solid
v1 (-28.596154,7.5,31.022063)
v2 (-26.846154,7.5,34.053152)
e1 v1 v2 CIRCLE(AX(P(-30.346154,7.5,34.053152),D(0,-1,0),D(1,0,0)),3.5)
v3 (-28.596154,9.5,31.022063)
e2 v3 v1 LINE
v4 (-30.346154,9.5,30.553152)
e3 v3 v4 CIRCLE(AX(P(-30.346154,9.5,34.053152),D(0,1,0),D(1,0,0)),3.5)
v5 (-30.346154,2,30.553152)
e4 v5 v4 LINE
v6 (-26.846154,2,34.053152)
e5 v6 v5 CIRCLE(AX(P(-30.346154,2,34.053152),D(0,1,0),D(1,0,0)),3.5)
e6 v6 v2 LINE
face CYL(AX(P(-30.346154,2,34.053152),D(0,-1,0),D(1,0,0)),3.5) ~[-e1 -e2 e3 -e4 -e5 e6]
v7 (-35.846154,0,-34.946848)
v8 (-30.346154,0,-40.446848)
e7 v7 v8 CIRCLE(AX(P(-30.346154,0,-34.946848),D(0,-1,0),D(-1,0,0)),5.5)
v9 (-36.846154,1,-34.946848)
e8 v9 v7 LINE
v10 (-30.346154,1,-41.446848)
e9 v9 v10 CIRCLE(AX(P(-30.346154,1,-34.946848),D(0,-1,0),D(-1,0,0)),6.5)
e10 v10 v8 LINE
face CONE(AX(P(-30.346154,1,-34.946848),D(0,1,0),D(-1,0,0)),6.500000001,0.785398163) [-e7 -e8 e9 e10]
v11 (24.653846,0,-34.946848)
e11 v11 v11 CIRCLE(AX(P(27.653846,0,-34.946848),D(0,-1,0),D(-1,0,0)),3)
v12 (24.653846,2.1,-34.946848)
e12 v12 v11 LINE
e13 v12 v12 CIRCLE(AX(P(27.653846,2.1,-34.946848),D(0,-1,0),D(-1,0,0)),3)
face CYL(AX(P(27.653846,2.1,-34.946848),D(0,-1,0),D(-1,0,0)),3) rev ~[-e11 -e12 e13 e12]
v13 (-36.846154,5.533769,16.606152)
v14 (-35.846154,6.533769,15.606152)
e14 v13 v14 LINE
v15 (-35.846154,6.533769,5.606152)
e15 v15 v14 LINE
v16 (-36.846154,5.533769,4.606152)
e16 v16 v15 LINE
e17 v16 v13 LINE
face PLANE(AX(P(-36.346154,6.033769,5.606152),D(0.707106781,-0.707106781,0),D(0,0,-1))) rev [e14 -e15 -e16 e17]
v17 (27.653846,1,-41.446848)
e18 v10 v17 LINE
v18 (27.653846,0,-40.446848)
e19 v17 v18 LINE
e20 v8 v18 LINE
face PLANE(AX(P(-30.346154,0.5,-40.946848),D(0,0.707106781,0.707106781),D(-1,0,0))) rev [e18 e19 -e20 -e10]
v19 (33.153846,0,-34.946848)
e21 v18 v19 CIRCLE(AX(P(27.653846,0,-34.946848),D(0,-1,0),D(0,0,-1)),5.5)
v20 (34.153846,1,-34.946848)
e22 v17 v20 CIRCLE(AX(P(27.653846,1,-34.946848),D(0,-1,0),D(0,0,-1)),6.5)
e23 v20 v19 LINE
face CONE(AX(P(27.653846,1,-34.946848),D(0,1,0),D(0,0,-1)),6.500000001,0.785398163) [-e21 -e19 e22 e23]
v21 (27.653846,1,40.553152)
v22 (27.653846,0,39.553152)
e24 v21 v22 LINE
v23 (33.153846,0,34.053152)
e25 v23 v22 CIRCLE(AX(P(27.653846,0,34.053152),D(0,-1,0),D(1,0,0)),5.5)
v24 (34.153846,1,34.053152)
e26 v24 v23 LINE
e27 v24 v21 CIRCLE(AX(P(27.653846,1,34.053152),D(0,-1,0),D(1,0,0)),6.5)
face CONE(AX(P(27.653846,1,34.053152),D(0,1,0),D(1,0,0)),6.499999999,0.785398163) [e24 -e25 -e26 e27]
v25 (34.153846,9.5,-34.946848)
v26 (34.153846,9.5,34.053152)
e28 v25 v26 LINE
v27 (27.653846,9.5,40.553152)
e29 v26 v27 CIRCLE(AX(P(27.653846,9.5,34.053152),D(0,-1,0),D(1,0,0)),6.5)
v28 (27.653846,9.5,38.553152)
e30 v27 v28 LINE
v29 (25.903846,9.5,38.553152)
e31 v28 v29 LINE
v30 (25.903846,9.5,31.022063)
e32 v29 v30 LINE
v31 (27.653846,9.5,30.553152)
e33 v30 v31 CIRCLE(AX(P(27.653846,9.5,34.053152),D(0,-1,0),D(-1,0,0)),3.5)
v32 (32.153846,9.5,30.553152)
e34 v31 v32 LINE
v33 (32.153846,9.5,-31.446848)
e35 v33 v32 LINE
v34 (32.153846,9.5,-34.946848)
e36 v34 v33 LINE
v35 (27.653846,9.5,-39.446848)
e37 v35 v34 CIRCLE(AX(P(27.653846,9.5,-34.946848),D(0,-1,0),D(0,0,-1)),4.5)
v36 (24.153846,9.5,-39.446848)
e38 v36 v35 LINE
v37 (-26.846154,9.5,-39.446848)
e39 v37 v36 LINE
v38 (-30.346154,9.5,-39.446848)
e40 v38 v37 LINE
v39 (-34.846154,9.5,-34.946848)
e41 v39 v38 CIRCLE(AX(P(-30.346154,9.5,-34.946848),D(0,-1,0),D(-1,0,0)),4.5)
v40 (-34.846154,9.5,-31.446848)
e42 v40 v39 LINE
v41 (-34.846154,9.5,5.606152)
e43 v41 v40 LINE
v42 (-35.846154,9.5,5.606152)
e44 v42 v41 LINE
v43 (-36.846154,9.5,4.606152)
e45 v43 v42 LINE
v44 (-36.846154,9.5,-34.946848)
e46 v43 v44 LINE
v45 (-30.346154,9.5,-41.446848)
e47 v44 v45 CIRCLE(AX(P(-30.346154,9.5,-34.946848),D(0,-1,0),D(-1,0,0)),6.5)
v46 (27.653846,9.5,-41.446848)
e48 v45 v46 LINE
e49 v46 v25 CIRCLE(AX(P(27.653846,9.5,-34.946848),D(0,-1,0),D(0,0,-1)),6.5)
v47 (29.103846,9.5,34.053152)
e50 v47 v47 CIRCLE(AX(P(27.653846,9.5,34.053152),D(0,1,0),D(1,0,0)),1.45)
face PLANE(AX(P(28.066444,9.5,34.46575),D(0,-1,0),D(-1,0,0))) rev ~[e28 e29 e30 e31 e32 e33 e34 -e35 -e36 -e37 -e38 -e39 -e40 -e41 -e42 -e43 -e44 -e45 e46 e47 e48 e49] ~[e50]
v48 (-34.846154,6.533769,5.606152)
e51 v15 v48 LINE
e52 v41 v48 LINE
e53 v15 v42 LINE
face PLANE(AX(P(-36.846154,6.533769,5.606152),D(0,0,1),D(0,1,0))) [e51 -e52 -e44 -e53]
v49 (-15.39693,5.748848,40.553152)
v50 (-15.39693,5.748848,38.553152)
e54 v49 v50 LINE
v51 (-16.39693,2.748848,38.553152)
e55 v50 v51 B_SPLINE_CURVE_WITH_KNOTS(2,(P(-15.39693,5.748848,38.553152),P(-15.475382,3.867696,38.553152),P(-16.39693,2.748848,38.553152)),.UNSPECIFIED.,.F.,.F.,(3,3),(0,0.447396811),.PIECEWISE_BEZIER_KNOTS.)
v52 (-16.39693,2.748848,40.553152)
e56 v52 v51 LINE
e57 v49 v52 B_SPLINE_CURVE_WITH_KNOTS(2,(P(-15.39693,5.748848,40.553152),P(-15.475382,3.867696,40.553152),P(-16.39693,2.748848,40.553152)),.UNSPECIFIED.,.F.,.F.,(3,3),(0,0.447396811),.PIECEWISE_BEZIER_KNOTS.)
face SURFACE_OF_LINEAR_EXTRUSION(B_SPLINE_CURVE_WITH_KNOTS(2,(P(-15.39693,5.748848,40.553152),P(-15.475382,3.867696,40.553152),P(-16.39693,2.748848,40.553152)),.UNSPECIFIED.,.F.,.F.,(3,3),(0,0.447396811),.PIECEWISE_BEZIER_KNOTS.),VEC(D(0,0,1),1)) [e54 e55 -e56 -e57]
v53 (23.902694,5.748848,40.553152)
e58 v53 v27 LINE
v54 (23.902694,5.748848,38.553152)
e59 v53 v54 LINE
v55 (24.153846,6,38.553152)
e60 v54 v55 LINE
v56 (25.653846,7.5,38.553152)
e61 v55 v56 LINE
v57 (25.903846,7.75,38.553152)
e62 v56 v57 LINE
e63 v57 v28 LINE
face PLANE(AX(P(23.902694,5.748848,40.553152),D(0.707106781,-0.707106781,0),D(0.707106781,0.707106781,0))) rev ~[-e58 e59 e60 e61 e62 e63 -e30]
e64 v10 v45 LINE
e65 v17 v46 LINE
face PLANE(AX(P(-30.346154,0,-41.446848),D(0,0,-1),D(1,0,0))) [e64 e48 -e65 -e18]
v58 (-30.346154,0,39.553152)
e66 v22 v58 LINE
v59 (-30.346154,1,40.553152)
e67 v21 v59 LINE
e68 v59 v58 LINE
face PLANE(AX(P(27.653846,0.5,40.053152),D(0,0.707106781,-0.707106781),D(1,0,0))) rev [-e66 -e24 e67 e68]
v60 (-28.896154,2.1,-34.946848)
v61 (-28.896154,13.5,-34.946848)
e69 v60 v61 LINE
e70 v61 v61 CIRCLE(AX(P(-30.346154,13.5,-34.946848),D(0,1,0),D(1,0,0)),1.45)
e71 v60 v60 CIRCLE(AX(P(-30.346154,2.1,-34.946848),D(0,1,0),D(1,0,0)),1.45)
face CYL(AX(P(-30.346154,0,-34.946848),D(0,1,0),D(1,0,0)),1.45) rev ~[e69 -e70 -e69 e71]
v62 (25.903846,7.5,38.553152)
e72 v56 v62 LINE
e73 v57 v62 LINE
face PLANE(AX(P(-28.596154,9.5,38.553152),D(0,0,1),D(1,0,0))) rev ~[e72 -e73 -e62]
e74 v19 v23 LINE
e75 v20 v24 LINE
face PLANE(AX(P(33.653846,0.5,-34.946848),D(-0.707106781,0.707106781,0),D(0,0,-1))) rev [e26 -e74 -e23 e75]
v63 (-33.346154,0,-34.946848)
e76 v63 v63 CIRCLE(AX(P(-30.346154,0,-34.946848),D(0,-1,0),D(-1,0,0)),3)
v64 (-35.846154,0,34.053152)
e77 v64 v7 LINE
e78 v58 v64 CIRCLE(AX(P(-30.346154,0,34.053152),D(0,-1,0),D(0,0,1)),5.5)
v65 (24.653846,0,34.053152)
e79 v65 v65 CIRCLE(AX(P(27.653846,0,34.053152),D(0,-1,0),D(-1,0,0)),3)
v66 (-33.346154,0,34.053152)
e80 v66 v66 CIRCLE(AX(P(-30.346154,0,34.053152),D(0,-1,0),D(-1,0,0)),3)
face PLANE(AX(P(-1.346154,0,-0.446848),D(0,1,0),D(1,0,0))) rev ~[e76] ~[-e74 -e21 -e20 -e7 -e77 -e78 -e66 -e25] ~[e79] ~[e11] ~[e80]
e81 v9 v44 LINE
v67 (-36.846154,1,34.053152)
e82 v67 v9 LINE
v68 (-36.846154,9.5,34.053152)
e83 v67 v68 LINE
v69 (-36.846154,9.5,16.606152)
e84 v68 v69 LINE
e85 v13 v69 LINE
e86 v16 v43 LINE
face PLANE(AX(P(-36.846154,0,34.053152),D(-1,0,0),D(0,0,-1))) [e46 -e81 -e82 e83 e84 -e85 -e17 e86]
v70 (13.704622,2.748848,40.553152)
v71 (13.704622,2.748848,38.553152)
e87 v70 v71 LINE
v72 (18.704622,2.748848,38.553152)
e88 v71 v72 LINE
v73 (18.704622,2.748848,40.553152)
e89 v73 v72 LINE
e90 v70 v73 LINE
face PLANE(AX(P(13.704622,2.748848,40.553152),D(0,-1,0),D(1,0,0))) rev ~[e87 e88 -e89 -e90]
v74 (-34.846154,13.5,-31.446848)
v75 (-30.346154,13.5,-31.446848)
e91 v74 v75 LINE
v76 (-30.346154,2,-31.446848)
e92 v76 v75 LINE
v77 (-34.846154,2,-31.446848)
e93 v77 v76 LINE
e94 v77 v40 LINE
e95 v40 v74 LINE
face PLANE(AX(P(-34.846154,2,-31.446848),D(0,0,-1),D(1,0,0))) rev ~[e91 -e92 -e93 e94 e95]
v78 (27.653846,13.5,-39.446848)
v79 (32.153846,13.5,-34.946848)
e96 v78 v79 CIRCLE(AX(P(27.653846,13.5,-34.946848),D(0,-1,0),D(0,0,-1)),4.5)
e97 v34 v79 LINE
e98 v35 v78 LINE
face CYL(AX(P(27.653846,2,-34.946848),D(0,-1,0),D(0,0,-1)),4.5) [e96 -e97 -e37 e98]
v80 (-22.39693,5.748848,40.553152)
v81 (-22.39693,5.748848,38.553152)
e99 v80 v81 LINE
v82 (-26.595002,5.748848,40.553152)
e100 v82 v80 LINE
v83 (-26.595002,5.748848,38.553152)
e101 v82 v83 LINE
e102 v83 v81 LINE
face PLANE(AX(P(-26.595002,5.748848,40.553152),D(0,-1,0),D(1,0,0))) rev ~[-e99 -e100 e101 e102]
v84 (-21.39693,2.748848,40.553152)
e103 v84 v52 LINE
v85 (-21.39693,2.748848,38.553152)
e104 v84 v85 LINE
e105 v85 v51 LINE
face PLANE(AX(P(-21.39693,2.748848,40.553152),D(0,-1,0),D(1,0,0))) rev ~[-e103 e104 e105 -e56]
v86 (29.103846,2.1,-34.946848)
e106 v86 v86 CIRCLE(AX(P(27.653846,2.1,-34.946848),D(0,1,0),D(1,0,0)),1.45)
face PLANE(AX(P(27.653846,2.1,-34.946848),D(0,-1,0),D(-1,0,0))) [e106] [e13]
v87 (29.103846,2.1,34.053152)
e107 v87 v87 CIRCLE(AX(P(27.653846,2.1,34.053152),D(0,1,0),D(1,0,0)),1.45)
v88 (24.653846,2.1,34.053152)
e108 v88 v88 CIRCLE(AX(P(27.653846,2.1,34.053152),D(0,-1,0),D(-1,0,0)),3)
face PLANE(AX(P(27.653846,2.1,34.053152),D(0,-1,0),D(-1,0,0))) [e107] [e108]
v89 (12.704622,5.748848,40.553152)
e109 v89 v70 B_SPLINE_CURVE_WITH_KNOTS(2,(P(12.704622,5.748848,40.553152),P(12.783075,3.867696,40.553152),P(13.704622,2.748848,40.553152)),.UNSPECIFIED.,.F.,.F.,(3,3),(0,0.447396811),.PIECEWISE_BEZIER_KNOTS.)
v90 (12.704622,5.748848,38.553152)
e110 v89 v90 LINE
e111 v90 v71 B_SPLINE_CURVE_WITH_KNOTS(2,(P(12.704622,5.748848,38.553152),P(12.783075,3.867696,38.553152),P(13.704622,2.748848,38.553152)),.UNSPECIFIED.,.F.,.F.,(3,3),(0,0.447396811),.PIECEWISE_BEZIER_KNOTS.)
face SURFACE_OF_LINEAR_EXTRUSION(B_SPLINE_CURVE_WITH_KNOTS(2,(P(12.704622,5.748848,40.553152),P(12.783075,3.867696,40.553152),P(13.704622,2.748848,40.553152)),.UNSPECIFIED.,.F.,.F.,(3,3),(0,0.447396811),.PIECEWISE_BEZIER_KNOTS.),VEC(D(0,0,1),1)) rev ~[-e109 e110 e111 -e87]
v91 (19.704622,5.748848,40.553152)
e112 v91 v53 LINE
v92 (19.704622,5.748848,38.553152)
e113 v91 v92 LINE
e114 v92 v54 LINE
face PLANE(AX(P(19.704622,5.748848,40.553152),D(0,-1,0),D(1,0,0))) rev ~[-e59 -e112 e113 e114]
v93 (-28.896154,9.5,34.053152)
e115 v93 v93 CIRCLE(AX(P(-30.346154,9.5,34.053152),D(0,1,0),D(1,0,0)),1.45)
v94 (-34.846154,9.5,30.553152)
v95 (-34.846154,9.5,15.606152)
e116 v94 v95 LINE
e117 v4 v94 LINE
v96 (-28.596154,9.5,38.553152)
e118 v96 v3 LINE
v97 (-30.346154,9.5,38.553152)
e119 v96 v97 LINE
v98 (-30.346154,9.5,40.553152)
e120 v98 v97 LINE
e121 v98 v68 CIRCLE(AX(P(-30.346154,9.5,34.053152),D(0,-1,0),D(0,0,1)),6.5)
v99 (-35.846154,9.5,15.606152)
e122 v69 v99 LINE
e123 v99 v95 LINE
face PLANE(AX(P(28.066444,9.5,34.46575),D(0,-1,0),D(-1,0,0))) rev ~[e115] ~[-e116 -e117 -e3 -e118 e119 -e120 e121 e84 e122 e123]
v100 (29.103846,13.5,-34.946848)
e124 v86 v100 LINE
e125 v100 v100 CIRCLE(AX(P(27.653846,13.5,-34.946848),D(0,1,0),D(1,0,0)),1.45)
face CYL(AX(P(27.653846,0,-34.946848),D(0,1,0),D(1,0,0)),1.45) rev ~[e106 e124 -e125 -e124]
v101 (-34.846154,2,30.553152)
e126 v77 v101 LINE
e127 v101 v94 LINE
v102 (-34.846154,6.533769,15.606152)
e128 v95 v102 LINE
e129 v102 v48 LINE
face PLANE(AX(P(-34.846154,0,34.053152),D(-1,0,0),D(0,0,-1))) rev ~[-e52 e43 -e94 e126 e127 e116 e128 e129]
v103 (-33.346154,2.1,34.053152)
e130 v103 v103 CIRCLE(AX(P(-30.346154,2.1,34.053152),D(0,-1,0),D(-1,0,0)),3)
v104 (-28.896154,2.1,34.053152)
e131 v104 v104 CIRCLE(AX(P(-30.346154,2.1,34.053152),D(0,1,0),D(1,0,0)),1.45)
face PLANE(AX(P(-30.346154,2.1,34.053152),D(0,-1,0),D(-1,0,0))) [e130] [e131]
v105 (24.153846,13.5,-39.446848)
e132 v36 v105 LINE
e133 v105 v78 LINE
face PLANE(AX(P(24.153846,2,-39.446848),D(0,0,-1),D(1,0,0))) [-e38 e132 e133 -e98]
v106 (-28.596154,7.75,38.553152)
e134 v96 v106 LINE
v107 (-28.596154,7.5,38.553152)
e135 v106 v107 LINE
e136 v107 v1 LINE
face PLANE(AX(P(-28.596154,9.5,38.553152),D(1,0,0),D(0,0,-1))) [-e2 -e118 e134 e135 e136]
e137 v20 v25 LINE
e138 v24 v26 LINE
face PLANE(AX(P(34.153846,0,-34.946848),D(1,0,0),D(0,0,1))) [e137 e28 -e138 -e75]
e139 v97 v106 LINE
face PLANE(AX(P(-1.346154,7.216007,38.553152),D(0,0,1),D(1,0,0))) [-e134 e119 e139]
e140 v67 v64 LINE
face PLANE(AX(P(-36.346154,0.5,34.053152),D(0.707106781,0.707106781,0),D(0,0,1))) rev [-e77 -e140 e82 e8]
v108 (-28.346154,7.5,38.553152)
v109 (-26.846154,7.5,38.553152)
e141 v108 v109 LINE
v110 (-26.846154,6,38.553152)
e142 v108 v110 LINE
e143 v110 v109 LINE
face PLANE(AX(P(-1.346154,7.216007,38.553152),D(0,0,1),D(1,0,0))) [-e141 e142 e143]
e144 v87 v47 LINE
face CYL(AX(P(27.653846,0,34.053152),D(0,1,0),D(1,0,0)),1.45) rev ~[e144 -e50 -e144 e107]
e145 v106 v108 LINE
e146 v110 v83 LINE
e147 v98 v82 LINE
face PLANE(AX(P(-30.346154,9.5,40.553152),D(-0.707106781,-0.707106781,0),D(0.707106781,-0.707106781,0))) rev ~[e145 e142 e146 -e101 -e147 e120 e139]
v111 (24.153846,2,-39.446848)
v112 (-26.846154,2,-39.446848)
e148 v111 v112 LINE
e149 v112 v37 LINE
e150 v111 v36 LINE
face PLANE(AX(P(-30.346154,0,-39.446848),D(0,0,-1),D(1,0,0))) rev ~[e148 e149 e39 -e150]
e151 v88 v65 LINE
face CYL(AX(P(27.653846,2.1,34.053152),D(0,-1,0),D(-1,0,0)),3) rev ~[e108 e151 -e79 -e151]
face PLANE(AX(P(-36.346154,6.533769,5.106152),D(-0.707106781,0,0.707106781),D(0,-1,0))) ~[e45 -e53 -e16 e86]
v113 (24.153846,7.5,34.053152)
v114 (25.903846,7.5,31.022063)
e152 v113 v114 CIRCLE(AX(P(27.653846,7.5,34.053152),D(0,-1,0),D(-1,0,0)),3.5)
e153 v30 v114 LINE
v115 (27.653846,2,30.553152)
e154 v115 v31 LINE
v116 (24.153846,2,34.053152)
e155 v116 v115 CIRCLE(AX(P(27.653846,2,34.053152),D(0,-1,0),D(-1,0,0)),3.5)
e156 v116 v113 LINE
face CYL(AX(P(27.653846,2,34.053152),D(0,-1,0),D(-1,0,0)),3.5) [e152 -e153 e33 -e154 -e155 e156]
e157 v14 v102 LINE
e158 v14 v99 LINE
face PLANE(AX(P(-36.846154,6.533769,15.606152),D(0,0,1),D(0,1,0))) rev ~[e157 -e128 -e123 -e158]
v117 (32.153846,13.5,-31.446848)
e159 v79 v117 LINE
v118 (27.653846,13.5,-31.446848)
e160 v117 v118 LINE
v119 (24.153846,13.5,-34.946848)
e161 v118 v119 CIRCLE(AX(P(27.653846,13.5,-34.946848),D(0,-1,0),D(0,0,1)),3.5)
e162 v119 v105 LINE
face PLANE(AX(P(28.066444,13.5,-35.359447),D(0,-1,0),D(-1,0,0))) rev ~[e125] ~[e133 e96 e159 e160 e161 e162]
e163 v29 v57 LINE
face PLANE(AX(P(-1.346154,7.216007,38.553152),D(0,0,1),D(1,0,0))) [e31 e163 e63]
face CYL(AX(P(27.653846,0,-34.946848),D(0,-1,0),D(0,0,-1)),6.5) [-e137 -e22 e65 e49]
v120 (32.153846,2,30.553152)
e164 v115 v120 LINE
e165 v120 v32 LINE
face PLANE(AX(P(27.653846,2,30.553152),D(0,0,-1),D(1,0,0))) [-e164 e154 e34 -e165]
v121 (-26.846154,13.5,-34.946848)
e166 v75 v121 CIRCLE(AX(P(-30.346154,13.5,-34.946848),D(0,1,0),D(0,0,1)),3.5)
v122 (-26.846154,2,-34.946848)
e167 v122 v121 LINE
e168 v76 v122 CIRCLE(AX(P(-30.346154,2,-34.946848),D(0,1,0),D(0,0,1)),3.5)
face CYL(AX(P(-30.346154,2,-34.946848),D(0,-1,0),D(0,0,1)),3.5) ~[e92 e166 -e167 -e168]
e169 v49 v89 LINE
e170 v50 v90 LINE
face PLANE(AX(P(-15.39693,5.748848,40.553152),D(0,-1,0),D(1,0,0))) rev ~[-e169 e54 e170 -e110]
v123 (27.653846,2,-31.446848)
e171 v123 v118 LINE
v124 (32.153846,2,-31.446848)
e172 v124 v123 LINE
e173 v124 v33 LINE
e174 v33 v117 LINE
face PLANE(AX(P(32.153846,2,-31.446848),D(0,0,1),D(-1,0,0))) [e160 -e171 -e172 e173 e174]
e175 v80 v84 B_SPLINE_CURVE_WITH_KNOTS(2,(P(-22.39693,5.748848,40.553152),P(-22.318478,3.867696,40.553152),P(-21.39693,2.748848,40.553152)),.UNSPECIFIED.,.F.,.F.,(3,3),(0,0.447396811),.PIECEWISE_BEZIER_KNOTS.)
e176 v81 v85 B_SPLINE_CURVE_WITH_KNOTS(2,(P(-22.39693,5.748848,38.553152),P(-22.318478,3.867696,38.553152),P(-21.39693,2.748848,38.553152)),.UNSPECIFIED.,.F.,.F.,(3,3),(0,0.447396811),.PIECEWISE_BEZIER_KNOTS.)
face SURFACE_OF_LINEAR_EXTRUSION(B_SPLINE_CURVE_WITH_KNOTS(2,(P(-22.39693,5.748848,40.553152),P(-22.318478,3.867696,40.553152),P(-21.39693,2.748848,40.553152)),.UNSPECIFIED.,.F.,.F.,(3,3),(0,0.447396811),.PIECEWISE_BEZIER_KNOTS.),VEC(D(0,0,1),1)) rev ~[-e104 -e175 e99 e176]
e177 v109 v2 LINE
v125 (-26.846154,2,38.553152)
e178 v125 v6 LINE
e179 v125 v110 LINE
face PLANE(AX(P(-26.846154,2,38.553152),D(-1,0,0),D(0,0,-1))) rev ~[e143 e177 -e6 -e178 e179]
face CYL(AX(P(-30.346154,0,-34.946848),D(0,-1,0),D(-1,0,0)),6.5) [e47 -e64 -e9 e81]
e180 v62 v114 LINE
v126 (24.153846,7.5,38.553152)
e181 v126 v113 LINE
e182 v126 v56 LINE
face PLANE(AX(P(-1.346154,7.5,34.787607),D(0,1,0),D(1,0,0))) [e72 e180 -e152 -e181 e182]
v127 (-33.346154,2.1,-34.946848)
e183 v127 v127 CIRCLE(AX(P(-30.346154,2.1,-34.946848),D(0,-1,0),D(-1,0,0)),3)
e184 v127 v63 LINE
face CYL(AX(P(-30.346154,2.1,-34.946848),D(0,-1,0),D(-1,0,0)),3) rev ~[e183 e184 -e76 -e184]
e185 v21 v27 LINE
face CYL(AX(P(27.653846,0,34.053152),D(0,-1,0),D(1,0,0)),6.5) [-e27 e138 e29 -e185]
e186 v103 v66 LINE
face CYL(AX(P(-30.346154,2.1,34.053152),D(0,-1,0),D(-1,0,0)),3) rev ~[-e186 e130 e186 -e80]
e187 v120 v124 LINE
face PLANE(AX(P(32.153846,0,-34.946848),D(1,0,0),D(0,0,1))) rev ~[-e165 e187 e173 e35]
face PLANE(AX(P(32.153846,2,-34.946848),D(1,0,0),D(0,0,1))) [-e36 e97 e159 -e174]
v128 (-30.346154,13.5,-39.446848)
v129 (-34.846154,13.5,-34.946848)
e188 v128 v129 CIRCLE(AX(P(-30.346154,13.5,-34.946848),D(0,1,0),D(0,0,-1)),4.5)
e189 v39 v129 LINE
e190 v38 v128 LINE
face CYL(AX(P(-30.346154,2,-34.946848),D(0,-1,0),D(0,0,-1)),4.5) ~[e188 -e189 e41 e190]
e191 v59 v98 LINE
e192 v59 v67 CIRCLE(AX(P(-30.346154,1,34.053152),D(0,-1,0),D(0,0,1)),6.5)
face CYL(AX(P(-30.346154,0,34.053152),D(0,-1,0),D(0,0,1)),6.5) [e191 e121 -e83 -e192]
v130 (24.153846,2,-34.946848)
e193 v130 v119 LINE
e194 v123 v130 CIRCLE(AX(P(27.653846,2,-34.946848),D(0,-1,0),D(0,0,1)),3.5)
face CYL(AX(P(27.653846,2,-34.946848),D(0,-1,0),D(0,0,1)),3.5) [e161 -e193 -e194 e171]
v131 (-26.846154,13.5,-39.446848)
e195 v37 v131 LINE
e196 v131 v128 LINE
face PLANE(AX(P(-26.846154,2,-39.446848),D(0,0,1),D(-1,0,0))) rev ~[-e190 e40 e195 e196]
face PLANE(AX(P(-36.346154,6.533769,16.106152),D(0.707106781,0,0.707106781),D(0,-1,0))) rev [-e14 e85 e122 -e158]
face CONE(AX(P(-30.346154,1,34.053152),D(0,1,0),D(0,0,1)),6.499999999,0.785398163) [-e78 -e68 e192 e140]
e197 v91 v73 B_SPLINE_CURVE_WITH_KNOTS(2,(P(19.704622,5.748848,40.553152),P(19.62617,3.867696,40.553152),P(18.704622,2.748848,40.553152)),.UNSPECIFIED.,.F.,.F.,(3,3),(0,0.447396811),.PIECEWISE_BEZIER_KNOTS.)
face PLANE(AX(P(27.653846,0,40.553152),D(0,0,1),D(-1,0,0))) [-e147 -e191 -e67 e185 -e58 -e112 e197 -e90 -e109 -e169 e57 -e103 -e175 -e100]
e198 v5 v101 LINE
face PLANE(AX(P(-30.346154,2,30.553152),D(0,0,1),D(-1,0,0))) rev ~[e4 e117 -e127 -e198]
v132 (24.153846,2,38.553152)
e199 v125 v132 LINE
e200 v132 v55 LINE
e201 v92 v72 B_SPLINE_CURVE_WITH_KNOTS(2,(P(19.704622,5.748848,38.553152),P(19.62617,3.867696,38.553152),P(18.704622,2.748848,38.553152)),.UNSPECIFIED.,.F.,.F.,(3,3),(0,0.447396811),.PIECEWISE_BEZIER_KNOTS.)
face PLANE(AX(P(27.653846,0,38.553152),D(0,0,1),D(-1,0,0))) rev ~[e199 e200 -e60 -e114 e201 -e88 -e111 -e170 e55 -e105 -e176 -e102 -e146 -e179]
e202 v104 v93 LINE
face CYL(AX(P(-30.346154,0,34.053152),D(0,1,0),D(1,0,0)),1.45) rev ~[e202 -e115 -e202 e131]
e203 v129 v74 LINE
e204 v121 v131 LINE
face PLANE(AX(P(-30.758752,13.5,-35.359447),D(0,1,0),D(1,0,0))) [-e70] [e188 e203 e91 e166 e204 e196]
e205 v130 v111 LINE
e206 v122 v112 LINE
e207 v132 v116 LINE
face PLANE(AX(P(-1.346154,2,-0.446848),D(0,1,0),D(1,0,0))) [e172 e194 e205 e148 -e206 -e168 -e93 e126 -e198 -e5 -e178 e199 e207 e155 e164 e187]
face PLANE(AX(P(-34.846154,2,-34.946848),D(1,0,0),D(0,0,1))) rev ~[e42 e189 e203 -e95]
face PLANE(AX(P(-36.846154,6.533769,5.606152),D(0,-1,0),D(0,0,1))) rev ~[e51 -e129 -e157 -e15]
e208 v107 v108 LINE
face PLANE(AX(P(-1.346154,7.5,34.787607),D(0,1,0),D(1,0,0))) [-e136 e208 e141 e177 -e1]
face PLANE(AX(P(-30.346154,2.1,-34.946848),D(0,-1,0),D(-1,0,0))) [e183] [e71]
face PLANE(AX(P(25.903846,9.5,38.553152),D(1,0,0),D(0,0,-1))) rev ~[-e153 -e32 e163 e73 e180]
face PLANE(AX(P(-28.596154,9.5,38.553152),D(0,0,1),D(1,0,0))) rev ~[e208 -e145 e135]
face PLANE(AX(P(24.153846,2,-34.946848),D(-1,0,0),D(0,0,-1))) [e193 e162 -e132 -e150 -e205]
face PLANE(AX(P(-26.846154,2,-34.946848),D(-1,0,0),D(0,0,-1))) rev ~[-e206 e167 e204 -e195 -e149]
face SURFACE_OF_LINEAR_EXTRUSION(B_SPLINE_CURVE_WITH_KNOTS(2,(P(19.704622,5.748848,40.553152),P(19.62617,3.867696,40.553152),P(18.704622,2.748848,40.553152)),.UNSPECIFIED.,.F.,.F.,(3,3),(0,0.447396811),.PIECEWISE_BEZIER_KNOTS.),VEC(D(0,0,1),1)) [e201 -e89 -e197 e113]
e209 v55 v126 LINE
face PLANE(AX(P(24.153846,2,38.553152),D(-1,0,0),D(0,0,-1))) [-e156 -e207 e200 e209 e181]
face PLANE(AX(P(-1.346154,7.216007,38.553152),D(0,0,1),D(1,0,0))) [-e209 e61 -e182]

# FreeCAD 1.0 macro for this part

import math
import FreeCAD as App
import Part
import Sketcher
Q = App.Units.Quantity


def edges_at(feature, points):
    """Names of the edges that pass closest to the given points."""
    edges = feature.Shape.Edges
    near = lambda p: min(range(len(edges)), key=lambda i: edges[i].distToShape(Part.Vertex(*p))[0])
    return sorted({f"Edge{near(p) + 1}" for p in points})


def add_polygon(sketch, points):
    """Adds a closed chain of lines whose ends are joined by coincident constraints."""
    first, n = sketch.GeometryCount, len(points)
    for a, b in zip(points, points[1:] + points[:1]):
        sketch.addGeometry(Part.LineSegment(App.Vector(*a, 0), App.Vector(*b, 0)), False)
    for i in range(n):
        sketch.addConstraint(Sketcher.Constraint("Coincident", first + i, 2, first + (i + 1) % n, 1))

doc = App.newDocument("Part")
body = doc.addObject("PartDesign::Body", "Body")

# Sketch on XZ plane
sketch1 = body.newObject("Sketcher::SketchObject", "Sketch")
sketch1.AttachmentSupport = (doc.getObject("XZ_Plane"), [""])
sketch1.MapMode = "FlatFace"
sketch1.addGeometry([
    Part.LineSegment(App.Vector(27.7, -41.4, 0), App.Vector(-30.3, -41.4, 0)),  # 0
    Part.ArcOfCircle(Part.Circle(App.Vector(-30.3, -34.9, 0), App.Vector(0, 0, 1), 6.5), math.radians(-180), math.radians(-90)),  # 1
    Part.LineSegment(App.Vector(-36.8, -34.9, 0), App.Vector(-36.8, 34.1, 0)),  # 2
    Part.ArcOfCircle(Part.Circle(App.Vector(-30.3, 34.1, 0), App.Vector(0, 0, 1), 6.5), math.radians(90), math.radians(180)),  # 3
    Part.LineSegment(App.Vector(-30.3, 40.6, 0), App.Vector(27.7, 40.6, 0)),  # 4
    Part.ArcOfCircle(Part.Circle(App.Vector(27.7, 34.1, 0), App.Vector(0, 0, 1), 6.5), math.radians(0), math.radians(90)),  # 5
    Part.LineSegment(App.Vector(34.2, 34.1, 0), App.Vector(34.2, -34.9, 0)),  # 6
    Part.ArcOfCircle(Part.Circle(App.Vector(27.7, -34.9, 0), App.Vector(0, 0, 1), 6.5), math.radians(-90), math.radians(0)),  # 7
    Part.LineSegment(App.Vector(-30.3, -39.4, 0), App.Vector(27.7, -39.4, 0)),  # 8
    Part.ArcOfCircle(Part.Circle(App.Vector(27.7, -34.9, 0), App.Vector(0, 0, 1), 4.5), math.radians(-90), math.radians(0)),  # 9
    Part.LineSegment(App.Vector(32.2, -34.9, 0), App.Vector(32.2, 34.1, 0)),  # 10
    Part.ArcOfCircle(Part.Circle(App.Vector(27.7, 34.1, 0), App.Vector(0, 0, 1), 4.5), math.radians(0), math.radians(90)),  # 11
    Part.LineSegment(App.Vector(27.7, 38.6, 0), App.Vector(-30.3, 38.6, 0)),  # 12
    Part.ArcOfCircle(Part.Circle(App.Vector(-30.3, 34.1, 0), App.Vector(0, 0, 1), 4.5), math.radians(90), math.radians(180)),  # 13
    Part.LineSegment(App.Vector(-34.8, 34.1, 0), App.Vector(-34.8, -34.9, 0)),  # 14
    Part.ArcOfCircle(Part.Circle(App.Vector(-30.3, -34.9, 0), App.Vector(0, 0, 1), 4.5), math.radians(-180), math.radians(-90)),  # 15
], False)
sketch1.addConstraint([
    Sketcher.Constraint("Tangent", 0, 2, 1, 2),
    Sketcher.Constraint("Tangent", 1, 1, 2, 1),
    Sketcher.Constraint("Tangent", 2, 2, 3, 2),
    Sketcher.Constraint("Tangent", 3, 1, 4, 1),
    Sketcher.Constraint("Tangent", 4, 2, 5, 2),
    Sketcher.Constraint("Tangent", 5, 1, 6, 1),
    Sketcher.Constraint("Tangent", 6, 2, 7, 2),
    Sketcher.Constraint("Tangent", 7, 1, 0, 1),
    Sketcher.Constraint("Tangent", 8, 2, 9, 1),
    Sketcher.Constraint("Tangent", 9, 2, 10, 1),
    Sketcher.Constraint("Tangent", 10, 2, 11, 1),
    Sketcher.Constraint("Tangent", 11, 2, 12, 1),
    Sketcher.Constraint("Tangent", 12, 2, 13, 1),
    Sketcher.Constraint("Tangent", 13, 2, 14, 1),
    Sketcher.Constraint("Tangent", 14, 2, 15, 1),
    Sketcher.Constraint("Tangent", 15, 2, 8, 1),
    Sketcher.Constraint("Horizontal", 0),
    Sketcher.Constraint("Vertical", 2),
    Sketcher.Constraint("Horizontal", 4),
    Sketcher.Constraint("Vertical", 6),
    Sketcher.Constraint("Horizontal", 8),
    Sketcher.Constraint("Vertical", 10),
    Sketcher.Constraint("Horizontal", 12),
    Sketcher.Constraint("Vertical", 14),
    Sketcher.Constraint("Coincident", 9, 3, 7, 3),
    Sketcher.Constraint("Coincident", 11, 3, 5, 3),
    Sketcher.Constraint("Coincident", 13, 3, 3, 3),
    Sketcher.Constraint("Equal", 1, 3),
    Sketcher.Constraint("Equal", 3, 5),
    Sketcher.Constraint("Equal", 5, 7),
    Sketcher.Constraint("Equal", 13, 15),
    Sketcher.Constraint("Radius", 1, Q("6.5 mm")),
    Sketcher.Constraint("Radius", 9, Q("4.5 mm")),
    Sketcher.Constraint("DistanceX", 0, 2, 0, 1, Q("58 mm")),
    Sketcher.Constraint("DistanceY", 2, 1, 2, 2, Q("69 mm")),
    Sketcher.Constraint("DistanceY", 1, 3, -1, 1, Q("34.946848 mm")),
    Sketcher.Constraint("DistanceX", 1, 3, -1, 1, Q("30.346154 mm")),
])
pad1 = body.newObject("PartDesign::Pad", "Pad")
pad1.Profile = sketch1
pad1.Length = 9.5
pad1.Reversed = True

# Sketch on XZ plane
sketch2 = body.newObject("Sketcher::SketchObject", "Sketch001")
sketch2.AttachmentSupport = (doc.getObject("XZ_Plane"), [""])
sketch2.MapMode = "FlatFace"
sketch2.addGeometry([
    Part.LineSegment(App.Vector(-30.3, 38.6, 0), App.Vector(27.7, 38.6, 0)),  # 0
    Part.ArcOfCircle(Part.Circle(App.Vector(27.7, 34.1, 0), App.Vector(0, 0, 1), 4.5), math.radians(0), math.radians(90)),  # 1
    Part.LineSegment(App.Vector(32.2, 34.1, 0), App.Vector(32.2, -34.9, 0)),  # 2
    Part.ArcOfCircle(Part.Circle(App.Vector(27.7, -34.9, 0), App.Vector(0, 0, 1), 4.5), math.radians(-90), math.radians(0)),  # 3
    Part.LineSegment(App.Vector(27.7, -39.4, 0), App.Vector(-30.3, -39.4, 0)),  # 4
    Part.ArcOfCircle(Part.Circle(App.Vector(-30.3, -34.9, 0), App.Vector(0, 0, 1), 4.5), math.radians(-180), math.radians(-90)),  # 5
    Part.LineSegment(App.Vector(-34.8, -34.9, 0), App.Vector(-34.8, 34.1, 0)),  # 6
    Part.ArcOfCircle(Part.Circle(App.Vector(-30.3, 34.1, 0), App.Vector(0, 0, 1), 4.5), math.radians(90), math.radians(180)),  # 7
], False)
sketch2.addConstraint([
    Sketcher.Constraint("Tangent", 0, 2, 1, 2),
    Sketcher.Constraint("Tangent", 1, 1, 2, 1),
    Sketcher.Constraint("Tangent", 2, 2, 3, 2),
    Sketcher.Constraint("Tangent", 3, 1, 4, 1),
    Sketcher.Constraint("Tangent", 4, 2, 5, 2),
    Sketcher.Constraint("Tangent", 5, 1, 6, 1),
    Sketcher.Constraint("Tangent", 6, 2, 7, 2),
    Sketcher.Constraint("Tangent", 7, 1, 0, 1),
    Sketcher.Constraint("Horizontal", 0),
    Sketcher.Constraint("Vertical", 2),
    Sketcher.Constraint("Horizontal", 4),
    Sketcher.Constraint("Vertical", 6),
    Sketcher.Constraint("Equal", 1, 3),
    Sketcher.Constraint("Equal", 3, 5),
    Sketcher.Constraint("Equal", 5, 7),
    Sketcher.Constraint("Radius", 1, Q("4.5 mm")),
    Sketcher.Constraint("DistanceX", 0, 1, 0, 2, Q("58 mm")),
    Sketcher.Constraint("DistanceY", 2, 2, 2, 1, Q("69 mm")),
    Sketcher.Constraint("DistanceY", -1, 1, 1, 3, Q("34.053152 mm")),
    Sketcher.Constraint("DistanceX", -1, 1, 1, 3, Q("27.653846 mm")),
])
pad2 = body.newObject("PartDesign::Pad", "Pad001")
pad2.Profile = sketch2
pad2.Length = 2
pad2.Reversed = True

# Sketch on XZ plane
sketch3 = body.newObject("Sketcher::SketchObject", "Sketch002")
sketch3.AttachmentSupport = (doc.getObject("XZ_Plane"), [""])
sketch3.MapMode = "FlatFace"
sketch3.AttachmentOffset = App.Placement(App.Vector(0, 0, -2), App.Rotation())
sketch3.addGeometry([
    Part.LineSegment(App.Vector(-26.8, -34.9, 0), App.Vector(-26.8, -39.4, 0)),  # 0
    Part.LineSegment(App.Vector(-26.8, -39.4, 0), App.Vector(-30.3, -39.4, 0)),  # 1
    Part.ArcOfCircle(Part.Circle(App.Vector(-30.3, -34.9, 0), App.Vector(0, 0, 1), 4.5), math.radians(-180), math.radians(-90)),  # 2
    Part.LineSegment(App.Vector(-34.8, -34.9, 0), App.Vector(-34.8, -31.4, 0)),  # 3
    Part.LineSegment(App.Vector(-34.8, -31.4, 0), App.Vector(-30.3, -31.4, 0)),  # 4
    Part.ArcOfCircle(Part.Circle(App.Vector(-30.3, -34.9, 0), App.Vector(0, 0, 1), 3.5), math.radians(0), math.radians(90)),  # 5
    Part.LineSegment(App.Vector(24.2, -39.4, 0), App.Vector(24.2, -34.9, 0)),  # 6
    Part.ArcOfCircle(Part.Circle(App.Vector(27.7, -34.9, 0), App.Vector(0, 0, 1), 3.5), math.radians(90), math.radians(180)),  # 7
    Part.LineSegment(App.Vector(27.7, -31.4, 0), App.Vector(32.2, -31.4, 0)),  # 8
    Part.LineSegment(App.Vector(32.2, -31.4, 0), App.Vector(32.2, -34.9, 0)),  # 9
    Part.ArcOfCircle(Part.Circle(App.Vector(27.7, -34.9, 0), App.Vector(0, 0, 1), 4.5), math.radians(-90), math.radians(0)),  # 10
    Part.LineSegment(App.Vector(27.7, -39.4, 0), App.Vector(24.2, -39.4, 0)),  # 11
], False)
sketch3.addConstraint([
    Sketcher.Constraint("Coincident", 0, 2, 1, 1),
    Sketcher.Constraint("Tangent", 1, 2, 2, 2),
    Sketcher.Constraint("Tangent", 2, 1, 3, 1),
    Sketcher.Constraint("Coincident", 3, 2, 4, 1),
    Sketcher.Constraint("Tangent", 4, 2, 5, 2),
    Sketcher.Constraint("Tangent", 5, 1, 0, 1),
    Sketcher.Constraint("Tangent", 6, 2, 7, 2),
    Sketcher.Constraint("Tangent", 7, 1, 8, 1),
    Sketcher.Constraint("Coincident", 8, 2, 9, 1),
    Sketcher.Constraint("Tangent", 9, 2, 10, 2),
    Sketcher.Constraint("Tangent", 10, 1, 11, 1),
    Sketcher.Constraint("Coincident", 11, 2, 6, 1),
    Sketcher.Constraint("Vertical", 0),
    Sketcher.Constraint("Horizontal", 1),
    Sketcher.Constraint("Vertical", 3),
    Sketcher.Constraint("Horizontal", 4),
    Sketcher.Constraint("Vertical", 6),
    Sketcher.Constraint("Horizontal", 8),
    Sketcher.Constraint("Vertical", 9),
    Sketcher.Constraint("Horizontal", 11),
    Sketcher.Constraint("Coincident", 5, 3, 2, 3),
    Sketcher.Constraint("Coincident", 10, 3, 7, 3),
    Sketcher.Constraint("Equal", 5, 7),
    Sketcher.Constraint("Equal", 2, 10),
    Sketcher.Constraint("Horizontal", 5, 3, 7, 3),
    Sketcher.Constraint("Radius", 2, Q("4.5 mm")),
    Sketcher.Constraint("Radius", 5, Q("3.5 mm")),
    Sketcher.Constraint("DistanceX", 2, 3, 7, 3, Q("58 mm")),
    Sketcher.Constraint("DistanceY", 2, 3, -1, 1, Q("34.946848 mm")),
    Sketcher.Constraint("DistanceX", 2, 3, -1, 1, Q("30.346154 mm")),
])
pad3 = body.newObject("PartDesign::Pad", "Pad002")
pad3.Profile = sketch3
pad3.Length = 11.5
pad3.Reversed = True

# Sketch on XZ plane
sketch4 = body.newObject("Sketcher::SketchObject", "Sketch003")
sketch4.AttachmentSupport = (doc.getObject("XZ_Plane"), [""])
sketch4.MapMode = "FlatFace"
sketch4.AttachmentOffset = App.Placement(App.Vector(0, 0, -2), App.Rotation())
sketch4.addGeometry([
    Part.LineSegment(App.Vector(32.2, 34.1, 0), App.Vector(32.2, 30.6, 0)),  # 0
    Part.LineSegment(App.Vector(32.2, 30.6, 0), App.Vector(27.7, 30.6, 0)),  # 1
    Part.ArcOfCircle(Part.Circle(App.Vector(27.7, 34.1, 0), App.Vector(0, 0, 1), 3.5), math.radians(-180), math.radians(-90)),  # 2
    Part.LineSegment(App.Vector(24.2, 34.1, 0), App.Vector(24.2, 38.6, 0)),  # 3
    Part.LineSegment(App.Vector(24.2, 38.6, 0), App.Vector(27.7, 38.6, 0)),  # 4
    Part.ArcOfCircle(Part.Circle(App.Vector(27.7, 34.1, 0), App.Vector(0, 0, 1), 4.5), math.radians(0), math.radians(90)),  # 5
    Part.LineSegment(App.Vector(-34.8, 30.6, 0), App.Vector(-34.8, 34.1, 0)),  # 6
    Part.ArcOfCircle(Part.Circle(App.Vector(-30.3, 34.1, 0), App.Vector(0, 0, 1), 4.5), math.radians(90), math.radians(180)),  # 7
    Part.LineSegment(App.Vector(-30.3, 38.6, 0), App.Vector(-26.8, 38.6, 0)),  # 8
    Part.LineSegment(App.Vector(-26.8, 38.6, 0), App.Vector(-26.8, 34.1, 0)),  # 9
    Part.ArcOfCircle(Part.Circle(App.Vector(-30.3, 34.1, 0), App.Vector(0, 0, 1), 3.5), math.radians(-90), math.radians(0)),  # 10
    Part.LineSegment(App.Vector(-30.3, 30.6, 0), App.Vector(-34.8, 30.6, 0)),  # 11
], False)
sketch4.addConstraint([
    Sketcher.Constraint("Coincident", 0, 2, 1, 1),
    Sketcher.Constraint("Tangent", 1, 2, 2, 2),
    Sketcher.Constraint("Tangent", 2, 1, 3, 1),
    Sketcher.Constraint("Coincident", 3, 2, 4, 1),
    Sketcher.Constraint("Tangent", 4, 2, 5, 2),
    Sketcher.Constraint("Tangent", 5, 1, 0, 1),
    Sketcher.Constraint("Tangent", 6, 2, 7, 2),
    Sketcher.Constraint("Tangent", 7, 1, 8, 1),
    Sketcher.Constraint("Coincident", 8, 2, 9, 1),
    Sketcher.Constraint("Tangent", 9, 2, 10, 2),
    Sketcher.Constraint("Tangent", 10, 1, 11, 1),
    Sketcher.Constraint("Coincident", 11, 2, 6, 1),
    Sketcher.Constraint("Vertical", 0),
    Sketcher.Constraint("Horizontal", 1),
    Sketcher.Constraint("Vertical", 3),
    Sketcher.Constraint("Horizontal", 4),
    Sketcher.Constraint("Vertical", 6),
    Sketcher.Constraint("Horizontal", 8),
    Sketcher.Constraint("Vertical", 9),
    Sketcher.Constraint("Horizontal", 11),
    Sketcher.Constraint("Coincident", 5, 3, 2, 3),
    Sketcher.Constraint("Coincident", 10, 3, 7, 3),
    Sketcher.Constraint("Equal", 5, 7),
    Sketcher.Constraint("Equal", 2, 10),
    Sketcher.Constraint("Horizontal", 5, 3, 7, 3),
    Sketcher.Constraint("Radius", 2, Q("3.5 mm")),
    Sketcher.Constraint("Radius", 5, Q("4.5 mm")),
    Sketcher.Constraint("DistanceX", 7, 3, 2, 3, Q("58 mm")),
    Sketcher.Constraint("DistanceY", -1, 1, 2, 3, Q("34.053152 mm")),
    Sketcher.Constraint("DistanceX", -1, 1, 2, 3, Q("27.653846 mm")),
])
pad4 = body.newObject("PartDesign::Pad", "Pad003")
pad4.Profile = sketch4
pad4.Length = 7.5
pad4.Reversed = True

# Sketch on XY plane
sketch5 = body.newObject("Sketcher::SketchObject", "Sketch004")
sketch5.AttachmentSupport = (doc.getObject("XY_Plane"), [""])
sketch5.MapMode = "FlatFace"
sketch5.AttachmentOffset = App.Placement(App.Vector(0, 0, 40.553152), App.Rotation())
sketch5.addGeometry([
    Part.LineSegment(App.Vector(27.653846, 9.5, 0), App.Vector(-30.346154, 9.5, 0)),  # 0
    Part.LineSegment(App.Vector(-30.346154, 9.5, 0), App.Vector(-26.595002, 5.748848, 0)),  # 1
    Part.LineSegment(App.Vector(-26.595002, 5.748848, 0), App.Vector(-22.39693, 5.748848, 0)),  # 2
    Part.BSplineCurve([App.Vector(-22.39693, 5.748848, 0), App.Vector(-22.318478, 3.867696, 0), App.Vector(-21.39693, 2.748848, 0)], [3, 3], [0, 0.447396811], False, 2, [1, 1, 1], False),  # 3
    Part.LineSegment(App.Vector(-21.39693, 2.748848, 0), App.Vector(-16.39693, 2.748848, 0)),  # 4
    Part.BSplineCurve([App.Vector(-15.39693, 5.748848, 0), App.Vector(-15.475382, 3.867696, 0), App.Vector(-16.39693, 2.748848, 0)], [3, 3], [0, 0.447396811], False, 2, [1, 1, 1], False),  # 5
    Part.LineSegment(App.Vector(-15.39693, 5.748848, 0), App.Vector(12.704622, 5.748848, 0)),  # 6
    Part.BSplineCurve([App.Vector(12.704622, 5.748848, 0), App.Vector(12.783075, 3.867696, 0), App.Vector(13.704622, 2.748848, 0)], [3, 3], [0, 0.447396811], False, 2, [1, 1, 1], False),  # 7
    Part.LineSegment(App.Vector(13.704622, 2.748848, 0), App.Vector(18.704622, 2.748848, 0)),  # 8
    Part.BSplineCurve([App.Vector(19.704622, 5.748848, 0), App.Vector(19.62617, 3.867696, 0), App.Vector(18.704622, 2.748848, 0)], [3, 3], [0, 0.447396811], False, 2, [1, 1, 1], False),  # 9
    Part.LineSegment(App.Vector(19.704622, 5.748848, 0), App.Vector(23.902694, 5.748848, 0)),  # 10
    Part.LineSegment(App.Vector(23.902694, 5.748848, 0), App.Vector(27.653846, 9.5, 0)),  # 11
], False)
sketch5.addConstraint([
    Sketcher.Constraint("Block", 3),
    Sketcher.Constraint("Block", 5),
    Sketcher.Constraint("Block", 7),
    Sketcher.Constraint("Block", 9),
    Sketcher.Constraint("Coincident", 0, 2, 1, 1),
    Sketcher.Constraint("Coincident", 1, 2, 2, 1),
    Sketcher.Constraint("Coincident", 2, 2, 3, 1),
    Sketcher.Constraint("Coincident", 3, 2, 4, 1),
    Sketcher.Constraint("Coincident", 4, 2, 5, 2),
    Sketcher.Constraint("Coincident", 5, 1, 6, 1),
    Sketcher.Constraint("Coincident", 6, 2, 7, 1),
    Sketcher.Constraint("Coincident", 7, 2, 8, 1),
    Sketcher.Constraint("Coincident", 8, 2, 9, 2),
    Sketcher.Constraint("Coincident", 9, 1, 10, 1),
    Sketcher.Constraint("Coincident", 10, 2, 11, 1),
    Sketcher.Constraint("Coincident", 11, 2, 0, 1),
    Sketcher.Constraint("Horizontal", 0),
    Sketcher.Constraint("Horizontal", 2),
    Sketcher.Constraint("Horizontal", 10),
    Sketcher.Constraint("DistanceX", 0, 2, 0, 1, Q("58 mm")),
    Sketcher.Constraint("DistanceY", -1, 1, 0, 2, Q("9.5 mm")),
    Sketcher.Constraint("DistanceX", 1, 2, -1, 1, Q("26.595002 mm")),
    Sketcher.Constraint("DistanceX", 10, 1, 10, 2, Q("4.198072 mm")),
    Sketcher.Constraint("Distance", 1, Q("5.30493 mm")),
])
pocket1 = body.newObject("PartDesign::Pocket", "Pocket")
pocket1.Profile = sketch5
pocket1.Length = 2

# Sketch on YZ plane
sketch6 = body.newObject("Sketcher::SketchObject", "Sketch005")
sketch6.AttachmentSupport = (doc.getObject("YZ_Plane"), [""])
sketch6.MapMode = "FlatFace"
sketch6.AttachmentOffset = App.Placement(App.Vector(0, 0, -36.846154), App.Rotation())
add_polygon(sketch6, [(9.5, 5.6), (6.5, 5.6), (6.5, 15.6), (9.5, 15.6)])  # lines 0-3
sketch6.addConstraint([
    Sketcher.Constraint("Horizontal", 0),
    Sketcher.Constraint("Vertical", 1),
    Sketcher.Constraint("Horizontal", 2),
    Sketcher.Constraint("Vertical", 3),
    Sketcher.Constraint("DistanceX", 0, 2, 0, 1, Q("3 mm")),
    Sketcher.Constraint("DistanceY", 1, 1, 1, 2, Q("10 mm")),
    Sketcher.Constraint("DistanceX", -1, 1, 0, 2, Q("6.533769 mm")),
    Sketcher.Constraint("DistanceY", -1, 1, 0, 2, Q("5.606152 mm")),
])
pocket2 = body.newObject("PartDesign::Pocket", "Pocket001")
pocket2.Profile = sketch6
pocket2.Type = "UpToFirst"
pocket2.Reversed = True
doc.recompute()

chamfer = body.newObject("PartDesign::Chamfer", "Chamfer")
chamfer.Base = (pocket2, edges_at(pocket2, [(-36.846, 8.017, 15.606), (-36.846, 8.017, 5.606), (-36.846, 6.534, 10.606)]))
chamfer.Size = 1
doc.recompute()

chamfer2 = body.newObject("PartDesign::Chamfer", "Chamfer001")
chamfer2.Base = (chamfer, edges_at(chamfer, [
    (-36.846, 0, -0.447),
    (-34.942, 0, -39.543),
    (-1.346, 0, -41.447),
    (32.25, 0, -39.543),
    (34.154, 0, -0.447),
    (32.25, 0, 38.649),
    (-1.346, 0, 40.553),
    (-34.942, 0, 38.649),
]))
chamfer2.Size = 1

# Sketch on XZ plane
sketch7 = body.newObject("Sketcher::SketchObject", "Sketch006")
sketch7.AttachmentSupport = (doc.getObject("XZ_Plane"), [""])
sketch7.MapMode = "FlatFace"
sketch7.addGeometry(Part.Circle(App.Vector(27.7, -34.9, 0), App.Vector(0, 0, 1), 1.4), False)
sketch7.addConstraint([
    Sketcher.Constraint("Diameter", 0, Q("2.9 mm")),
    Sketcher.Constraint("DistanceY", 0, 3, -1, 1, Q("34.946848 mm")),
    Sketcher.Constraint("DistanceX", -1, 1, 0, 3, Q("27.653846 mm")),
])
doc.recompute()
hole = body.newObject("PartDesign::Hole", "Hole")
hole.Profile = sketch7
hole.ThreadType = "None"
hole.Diameter = 2.9
hole.DepthType = "ThroughAll"
hole.HoleCutType = "Counterbore"
hole.HoleCutDiameter = 6
hole.HoleCutDepth = 2.1

# Sketch on XZ plane
sketch8 = body.newObject("Sketcher::SketchObject", "Sketch007")
sketch8.AttachmentSupport = (doc.getObject("XZ_Plane"), [""])
sketch8.MapMode = "FlatFace"
sketch8.addGeometry(Part.Circle(App.Vector(-30.3, -34.9, 0), App.Vector(0, 0, 1), 1.4), False)
sketch8.addConstraint([
    Sketcher.Constraint("Diameter", 0, Q("2.9 mm")),
    Sketcher.Constraint("DistanceY", 0, 3, -1, 1, Q("34.946848 mm")),
    Sketcher.Constraint("DistanceX", 0, 3, -1, 1, Q("30.346154 mm")),
])
doc.recompute()
hole2 = body.newObject("PartDesign::Hole", "Hole001")
hole2.Profile = sketch8
hole2.ThreadType = "None"
hole2.Diameter = 2.9
hole2.DepthType = "ThroughAll"
hole2.HoleCutType = "Counterbore"
hole2.HoleCutDiameter = 6
hole2.HoleCutDepth = 2.1

# Sketch on XZ plane
sketch9 = body.newObject("Sketcher::SketchObject", "Sketch008")
sketch9.AttachmentSupport = (doc.getObject("XZ_Plane"), [""])
sketch9.MapMode = "FlatFace"
sketch9.addGeometry(Part.Circle(App.Vector(27.7, 34.1, 0), App.Vector(0, 0, 1), 1.4), False)
sketch9.addConstraint([
    Sketcher.Constraint("Diameter", 0, Q("2.9 mm")),
    Sketcher.Constraint("DistanceY", -1, 1, 0, 3, Q("34.053152 mm")),
    Sketcher.Constraint("DistanceX", -1, 1, 0, 3, Q("27.653846 mm")),
])
doc.recompute()
hole3 = body.newObject("PartDesign::Hole", "Hole002")
hole3.Profile = sketch9
hole3.ThreadType = "None"
hole3.Diameter = 2.9
hole3.DepthType = "ThroughAll"
hole3.HoleCutType = "Counterbore"
hole3.HoleCutDiameter = 6
hole3.HoleCutDepth = 2.1

# Sketch on XZ plane
sketch10 = body.newObject("Sketcher::SketchObject", "Sketch009")
sketch10.AttachmentSupport = (doc.getObject("XZ_Plane"), [""])
sketch10.MapMode = "FlatFace"
sketch10.addGeometry(Part.Circle(App.Vector(-30.3, 34.1, 0), App.Vector(0, 0, 1), 1.4), False)
sketch10.addConstraint([
    Sketcher.Constraint("Diameter", 0, Q("2.9 mm")),
    Sketcher.Constraint("DistanceY", -1, 1, 0, 3, Q("34.053152 mm")),
    Sketcher.Constraint("DistanceX", 0, 3, -1, 1, Q("30.346154 mm")),
])
doc.recompute()
hole4 = body.newObject("PartDesign::Hole", "Hole003")
hole4.Profile = sketch10
hole4.ThreadType = "None"
hole4.Diameter = 2.9
hole4.DepthType = "ThroughAll"
hole4.HoleCutType = "Counterbore"
hole4.HoleCutDiameter = 6
hole4.HoleCutDepth = 2.1

# Sketch on XZ plane
sketch11 = body.newObject("Sketcher::SketchObject", "Sketch010")
sketch11.AttachmentSupport = (doc.getObject("XZ_Plane"), [""])
sketch11.MapMode = "FlatFace"
sketch11.AttachmentOffset = App.Placement(App.Vector(0, 0, -9.5), App.Rotation())
add_polygon(sketch11, [(-29, 31), (-29, 39), (26, 39), (26, 31)])  # lines 0-3
sketch11.addConstraint([
    Sketcher.Constraint("Vertical", 0),
    Sketcher.Constraint("Horizontal", 1),
    Sketcher.Constraint("Vertical", 2),
    Sketcher.Constraint("Horizontal", 3),
    Sketcher.Constraint("DistanceX", 1, 1, 1, 2, Q("54.5 mm")),
    Sketcher.Constraint("DistanceY", 0, 1, 0, 2, Q("7.531089 mm")),
    Sketcher.Constraint("DistanceY", -1, 1, 0, 2, Q("38.553152 mm")),
    Sketcher.Constraint("DistanceX", 0, 2, -1, 1, Q("28.596154 mm")),
])
pocket3 = body.newObject("PartDesign::Pocket", "Pocket002")
pocket3.Profile = sketch11
pocket3.Length = 2
pocket3.Reversed = True

doc.recompute()
